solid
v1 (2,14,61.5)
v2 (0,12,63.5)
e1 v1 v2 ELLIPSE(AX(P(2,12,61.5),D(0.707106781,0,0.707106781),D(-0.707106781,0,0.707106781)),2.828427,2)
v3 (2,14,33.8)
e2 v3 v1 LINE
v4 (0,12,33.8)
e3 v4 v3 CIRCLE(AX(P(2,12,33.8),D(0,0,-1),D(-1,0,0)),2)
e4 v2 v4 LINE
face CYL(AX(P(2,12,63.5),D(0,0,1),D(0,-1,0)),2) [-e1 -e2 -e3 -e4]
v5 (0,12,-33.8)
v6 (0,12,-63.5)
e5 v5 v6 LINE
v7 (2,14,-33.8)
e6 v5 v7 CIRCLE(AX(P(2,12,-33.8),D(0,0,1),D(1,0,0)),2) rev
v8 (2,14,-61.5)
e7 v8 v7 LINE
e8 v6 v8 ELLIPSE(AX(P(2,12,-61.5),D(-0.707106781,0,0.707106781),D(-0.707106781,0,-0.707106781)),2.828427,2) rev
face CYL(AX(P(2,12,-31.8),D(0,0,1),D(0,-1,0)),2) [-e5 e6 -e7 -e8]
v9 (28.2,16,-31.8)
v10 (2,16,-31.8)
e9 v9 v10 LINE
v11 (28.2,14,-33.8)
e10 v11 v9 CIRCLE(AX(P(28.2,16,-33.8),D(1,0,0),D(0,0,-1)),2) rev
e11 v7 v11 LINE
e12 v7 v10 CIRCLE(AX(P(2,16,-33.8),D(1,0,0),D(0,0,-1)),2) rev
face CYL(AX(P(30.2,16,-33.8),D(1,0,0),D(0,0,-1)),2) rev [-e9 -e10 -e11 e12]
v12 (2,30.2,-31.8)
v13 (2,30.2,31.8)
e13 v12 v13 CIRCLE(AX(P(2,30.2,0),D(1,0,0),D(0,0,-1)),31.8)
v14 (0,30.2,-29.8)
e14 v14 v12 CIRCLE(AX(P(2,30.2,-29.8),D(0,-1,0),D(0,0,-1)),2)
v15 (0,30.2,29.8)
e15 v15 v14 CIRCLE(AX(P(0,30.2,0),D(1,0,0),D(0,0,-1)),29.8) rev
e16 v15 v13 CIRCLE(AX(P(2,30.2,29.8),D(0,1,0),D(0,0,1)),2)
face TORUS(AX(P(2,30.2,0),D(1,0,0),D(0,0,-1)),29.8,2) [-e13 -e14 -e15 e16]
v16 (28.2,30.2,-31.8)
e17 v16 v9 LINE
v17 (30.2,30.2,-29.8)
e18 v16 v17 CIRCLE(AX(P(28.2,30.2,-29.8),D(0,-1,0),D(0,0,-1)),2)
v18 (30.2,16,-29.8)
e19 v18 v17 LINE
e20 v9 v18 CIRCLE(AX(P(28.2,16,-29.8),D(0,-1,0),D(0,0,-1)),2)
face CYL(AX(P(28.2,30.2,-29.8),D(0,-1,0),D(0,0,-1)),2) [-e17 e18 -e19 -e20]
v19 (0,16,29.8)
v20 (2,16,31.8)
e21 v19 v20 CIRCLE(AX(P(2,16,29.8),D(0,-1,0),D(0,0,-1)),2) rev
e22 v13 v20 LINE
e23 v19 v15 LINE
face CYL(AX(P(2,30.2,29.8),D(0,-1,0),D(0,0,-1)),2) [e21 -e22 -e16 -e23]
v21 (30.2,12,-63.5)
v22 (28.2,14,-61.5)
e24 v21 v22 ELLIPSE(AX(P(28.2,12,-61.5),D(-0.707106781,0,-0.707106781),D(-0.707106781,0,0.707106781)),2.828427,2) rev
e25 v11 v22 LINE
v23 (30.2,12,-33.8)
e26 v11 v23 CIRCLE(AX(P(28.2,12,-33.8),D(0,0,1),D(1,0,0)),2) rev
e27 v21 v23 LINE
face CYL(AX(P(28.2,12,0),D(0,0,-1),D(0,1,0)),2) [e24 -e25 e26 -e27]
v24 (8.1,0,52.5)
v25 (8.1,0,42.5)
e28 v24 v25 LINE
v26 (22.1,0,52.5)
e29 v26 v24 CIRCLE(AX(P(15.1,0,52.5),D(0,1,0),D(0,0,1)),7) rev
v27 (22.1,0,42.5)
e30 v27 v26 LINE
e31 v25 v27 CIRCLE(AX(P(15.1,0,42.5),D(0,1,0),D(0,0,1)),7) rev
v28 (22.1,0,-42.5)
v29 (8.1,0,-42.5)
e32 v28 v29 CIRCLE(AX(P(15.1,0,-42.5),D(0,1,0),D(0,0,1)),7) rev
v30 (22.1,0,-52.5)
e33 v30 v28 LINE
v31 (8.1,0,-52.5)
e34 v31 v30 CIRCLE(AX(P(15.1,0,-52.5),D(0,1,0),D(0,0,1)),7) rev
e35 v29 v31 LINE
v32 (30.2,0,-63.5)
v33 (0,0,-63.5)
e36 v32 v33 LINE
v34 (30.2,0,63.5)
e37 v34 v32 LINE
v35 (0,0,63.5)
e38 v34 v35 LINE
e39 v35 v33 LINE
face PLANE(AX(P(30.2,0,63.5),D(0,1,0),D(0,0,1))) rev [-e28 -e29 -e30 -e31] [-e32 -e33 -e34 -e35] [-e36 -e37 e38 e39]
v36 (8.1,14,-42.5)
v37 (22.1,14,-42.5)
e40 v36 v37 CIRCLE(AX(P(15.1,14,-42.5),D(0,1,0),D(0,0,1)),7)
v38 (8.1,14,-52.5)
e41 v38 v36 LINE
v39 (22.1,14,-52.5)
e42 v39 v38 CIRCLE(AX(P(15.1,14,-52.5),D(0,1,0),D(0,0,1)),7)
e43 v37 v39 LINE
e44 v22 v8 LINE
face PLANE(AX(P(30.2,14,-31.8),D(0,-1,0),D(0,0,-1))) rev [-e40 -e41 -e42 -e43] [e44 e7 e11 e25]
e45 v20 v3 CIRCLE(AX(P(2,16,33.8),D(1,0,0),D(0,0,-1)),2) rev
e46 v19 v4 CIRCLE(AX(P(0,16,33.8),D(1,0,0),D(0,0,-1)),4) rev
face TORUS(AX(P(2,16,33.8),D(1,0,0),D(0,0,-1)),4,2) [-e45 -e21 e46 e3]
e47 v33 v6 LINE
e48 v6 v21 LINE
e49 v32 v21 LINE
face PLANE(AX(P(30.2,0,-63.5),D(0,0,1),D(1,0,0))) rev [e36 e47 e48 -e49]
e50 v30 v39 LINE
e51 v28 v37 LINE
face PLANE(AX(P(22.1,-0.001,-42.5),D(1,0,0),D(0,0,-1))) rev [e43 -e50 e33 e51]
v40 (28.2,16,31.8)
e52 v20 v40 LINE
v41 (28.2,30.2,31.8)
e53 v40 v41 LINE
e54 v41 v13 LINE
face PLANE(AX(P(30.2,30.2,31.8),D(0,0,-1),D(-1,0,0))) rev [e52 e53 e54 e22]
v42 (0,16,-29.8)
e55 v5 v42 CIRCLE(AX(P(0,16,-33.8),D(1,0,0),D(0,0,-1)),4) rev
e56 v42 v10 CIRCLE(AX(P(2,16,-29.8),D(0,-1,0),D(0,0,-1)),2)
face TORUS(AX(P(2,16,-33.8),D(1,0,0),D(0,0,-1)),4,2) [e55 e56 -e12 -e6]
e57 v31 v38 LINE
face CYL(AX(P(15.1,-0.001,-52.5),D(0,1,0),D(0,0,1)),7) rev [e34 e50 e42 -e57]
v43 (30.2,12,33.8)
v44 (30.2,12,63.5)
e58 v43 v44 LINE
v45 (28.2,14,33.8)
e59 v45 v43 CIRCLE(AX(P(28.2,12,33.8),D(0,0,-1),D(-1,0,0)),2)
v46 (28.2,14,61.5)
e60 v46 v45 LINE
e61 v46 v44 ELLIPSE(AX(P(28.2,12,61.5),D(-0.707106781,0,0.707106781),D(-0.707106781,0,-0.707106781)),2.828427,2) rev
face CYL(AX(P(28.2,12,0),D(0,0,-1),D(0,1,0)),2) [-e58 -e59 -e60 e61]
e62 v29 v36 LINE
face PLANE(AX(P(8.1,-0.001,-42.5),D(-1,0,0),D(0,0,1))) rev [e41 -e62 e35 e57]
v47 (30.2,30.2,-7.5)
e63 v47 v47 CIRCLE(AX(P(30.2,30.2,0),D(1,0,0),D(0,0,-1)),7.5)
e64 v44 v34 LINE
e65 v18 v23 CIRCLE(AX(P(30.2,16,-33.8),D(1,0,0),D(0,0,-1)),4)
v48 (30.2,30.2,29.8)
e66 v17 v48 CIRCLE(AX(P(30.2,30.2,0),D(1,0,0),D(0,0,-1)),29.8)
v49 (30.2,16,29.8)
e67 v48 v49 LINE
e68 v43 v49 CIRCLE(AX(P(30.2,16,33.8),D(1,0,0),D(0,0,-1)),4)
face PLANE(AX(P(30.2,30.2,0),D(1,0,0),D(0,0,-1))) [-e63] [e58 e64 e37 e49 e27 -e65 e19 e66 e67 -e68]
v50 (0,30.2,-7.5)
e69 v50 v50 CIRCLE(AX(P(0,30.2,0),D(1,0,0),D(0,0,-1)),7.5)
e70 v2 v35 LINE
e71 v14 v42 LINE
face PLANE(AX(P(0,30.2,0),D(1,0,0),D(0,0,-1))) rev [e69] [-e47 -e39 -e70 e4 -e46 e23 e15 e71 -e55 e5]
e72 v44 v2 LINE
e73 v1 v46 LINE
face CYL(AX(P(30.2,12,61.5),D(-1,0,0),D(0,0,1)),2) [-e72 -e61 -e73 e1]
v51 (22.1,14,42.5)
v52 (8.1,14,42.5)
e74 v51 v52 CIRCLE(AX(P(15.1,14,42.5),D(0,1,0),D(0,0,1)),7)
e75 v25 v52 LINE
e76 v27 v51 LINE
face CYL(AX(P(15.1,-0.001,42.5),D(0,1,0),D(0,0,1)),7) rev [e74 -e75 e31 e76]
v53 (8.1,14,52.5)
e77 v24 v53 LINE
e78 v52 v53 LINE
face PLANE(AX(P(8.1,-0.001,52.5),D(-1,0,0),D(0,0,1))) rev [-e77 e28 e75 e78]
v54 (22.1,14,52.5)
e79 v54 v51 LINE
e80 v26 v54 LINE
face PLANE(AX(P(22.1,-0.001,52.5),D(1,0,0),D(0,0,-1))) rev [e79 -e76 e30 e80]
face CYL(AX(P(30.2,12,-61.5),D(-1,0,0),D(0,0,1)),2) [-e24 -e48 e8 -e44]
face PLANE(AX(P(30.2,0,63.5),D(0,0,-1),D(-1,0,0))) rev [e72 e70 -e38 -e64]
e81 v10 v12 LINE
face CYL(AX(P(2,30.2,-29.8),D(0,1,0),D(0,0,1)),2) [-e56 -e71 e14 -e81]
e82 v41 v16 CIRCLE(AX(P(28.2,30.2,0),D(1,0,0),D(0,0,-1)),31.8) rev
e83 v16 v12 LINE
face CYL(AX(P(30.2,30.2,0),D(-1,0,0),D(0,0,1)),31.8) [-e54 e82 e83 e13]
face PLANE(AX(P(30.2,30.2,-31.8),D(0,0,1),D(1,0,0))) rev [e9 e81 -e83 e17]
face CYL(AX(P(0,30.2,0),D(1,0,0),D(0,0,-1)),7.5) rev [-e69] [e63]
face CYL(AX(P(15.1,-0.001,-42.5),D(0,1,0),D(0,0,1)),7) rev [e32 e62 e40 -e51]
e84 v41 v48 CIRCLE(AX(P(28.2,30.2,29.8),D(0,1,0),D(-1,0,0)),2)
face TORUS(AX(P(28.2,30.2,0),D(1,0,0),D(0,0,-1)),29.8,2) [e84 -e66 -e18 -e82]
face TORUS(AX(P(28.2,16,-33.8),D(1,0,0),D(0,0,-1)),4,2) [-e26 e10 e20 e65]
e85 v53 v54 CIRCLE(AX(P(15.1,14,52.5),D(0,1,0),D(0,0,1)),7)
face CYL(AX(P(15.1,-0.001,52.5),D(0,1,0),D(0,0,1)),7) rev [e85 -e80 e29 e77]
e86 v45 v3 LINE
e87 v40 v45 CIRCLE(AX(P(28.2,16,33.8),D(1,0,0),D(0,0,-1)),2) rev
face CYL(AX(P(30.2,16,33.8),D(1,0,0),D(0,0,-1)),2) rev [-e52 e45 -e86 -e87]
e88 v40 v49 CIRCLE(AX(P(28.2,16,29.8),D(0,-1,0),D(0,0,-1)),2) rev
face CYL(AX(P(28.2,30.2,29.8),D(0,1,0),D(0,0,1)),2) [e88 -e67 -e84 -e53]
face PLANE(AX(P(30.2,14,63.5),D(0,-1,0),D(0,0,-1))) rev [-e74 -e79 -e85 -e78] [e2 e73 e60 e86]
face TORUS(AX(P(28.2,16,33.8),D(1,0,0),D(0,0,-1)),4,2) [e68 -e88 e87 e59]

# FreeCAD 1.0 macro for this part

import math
import FreeCAD as App
import Part
import Sketcher
Q = App.Units.Quantity


def edges_at(feature, points):
    """Names of the edges that pass closest to the given points."""
    edges = feature.Shape.Edges
    near = lambda p: min(range(len(edges)), key=lambda i: edges[i].distToShape(Part.Vertex(*p))[0])
    return sorted({f"Edge{near(p) + 1}" for p in points})

doc = App.newDocument("Part")
body = doc.addObject("PartDesign::Body", "Body")

sketch1 = body.newObject("Sketcher::SketchObject", "Sketch")
sketch1.AttachmentSupport = (doc.getObject("YZ_Plane"), [""])
sketch1.MapMode = "FlatFace"
sketch1.addGeometry([
    Part.LineSegment(App.Vector(14, -63.5, 0), App.Vector(14, -31.8, 0)),
    Part.LineSegment(App.Vector(14, -31.8, 0), App.Vector(30.2, -31.8, 0)),
    Part.ArcOfCircle(Part.Circle(App.Vector(30.2, 0, 0), App.Vector(0, 0, 1), 31.8), math.radians(-90), math.radians(90)),
    Part.LineSegment(App.Vector(30.2, 31.8, 0), App.Vector(14, 31.8, 0)),
    Part.LineSegment(App.Vector(14, 31.8, 0), App.Vector(14, 63.5, 0)),
    Part.LineSegment(App.Vector(14, 63.5, 0), App.Vector(0, 63.5, 0)),
    Part.LineSegment(App.Vector(0, 63.5, 0), App.Vector(0, -63.5, 0)),
    Part.LineSegment(App.Vector(0, -63.5, 0), App.Vector(14, -63.5, 0)),
], False)
sketch1.addConstraint([
    Sketcher.Constraint("Coincident", 0, 2, 1, 1),
    Sketcher.Constraint("Tangent", 1, 2, 2, 1),
    Sketcher.Constraint("Tangent", 2, 2, 3, 1),
    Sketcher.Constraint("Coincident", 3, 2, 4, 1),
    Sketcher.Constraint("Coincident", 4, 2, 5, 1),
    Sketcher.Constraint("Coincident", 5, 2, 6, 1),
    Sketcher.Constraint("Coincident", 6, 2, 7, 1),
    Sketcher.Constraint("Coincident", 7, 2, 0, 1),
    Sketcher.Constraint("Vertical", 0),
    Sketcher.Constraint("Horizontal", 1),
    Sketcher.Constraint("Horizontal", 3),
    Sketcher.Constraint("Vertical", 4),
    Sketcher.Constraint("Horizontal", 5),
    Sketcher.Constraint("Vertical", 6),
    Sketcher.Constraint("Horizontal", 7),
    Sketcher.Constraint("Symmetric", 5, 2, 6, 2, -1, 1),
    Sketcher.Constraint("Symmetric", 0, 2, 3, 2, -1),
    Sketcher.Constraint("Radius", 2, Q("31.8 mm")),
    Sketcher.Constraint("DistanceX", 5, 2, 5, 1, Q("14 mm")),
    Sketcher.Constraint("DistanceY", 6, 2, 6, 1, Q("127 mm")),
    Sketcher.Constraint("DistanceX", 1, 1, 1, 2, Q("16.2 mm")),
])
pad1 = body.newObject("PartDesign::Pad", "Pad")
pad1.Profile = sketch1
pad1.Length = 30.2

sketch2 = body.newObject("Sketcher::SketchObject", "Sketch001")
sketch2.AttachmentSupport = (doc.getObject("YZ_Plane"), [""])
sketch2.MapMode = "FlatFace"
sketch2.AttachmentOffset = App.Placement(App.Vector(0, 0, 30.2), App.Rotation())
sketch2.addGeometry(Part.Circle(App.Vector(30.2, 0, 0), App.Vector(0, 0, 1), 7.5), False)
sketch2.addConstraint([
    Sketcher.Constraint("PointOnObject", 0, 3, -1),
    Sketcher.Constraint("Diameter", 0, Q("15 mm")),
    Sketcher.Constraint("DistanceX", -1, 1, 0, 3, Q("30.2 mm")),
])
pocket1 = body.newObject("PartDesign::Pocket", "Pocket")
pocket1.Profile = sketch2
pocket1.Type = "ThroughAll"
doc.recompute()

fillet = body.newObject("PartDesign::Fillet", "Fillet")
fillet.Base = (pocket1, edges_at(pocket1, [
    (0, 14, -47.65),
    (15.1, 14, 63.5),
    (15.1, 14, 31.8),
    (15.1, 14, -31.8),
    (15.1, 14, -63.5),
    (30.2, 14, -47.65),
    (30.2, 22.1, -31.8),
    (30.2, 62, 0),
    (30.2, 22.1, 31.8),
    (30.2, 14, 47.65),
    (0, 14, 47.65),
    (0, 22.1, 31.8),
    (0, 62, 0),
    (0, 22.1, -31.8),
]))
fillet.Radius = 2

sketch3 = body.newObject("Sketcher::SketchObject", "Sketch002")
sketch3.AttachmentSupport = (doc.getObject("XZ_Plane"), [""])
sketch3.MapMode = "FlatFace"
sketch3.AttachmentOffset = App.Placement(App.Vector(0, 0, -14), App.Rotation())
sketch3.addGeometry([
    Part.LineSegment(App.Vector(8.1, 42.5, 0), App.Vector(8.1, 52.5, 0)),
    Part.ArcOfCircle(Part.Circle(App.Vector(15.1, 52.5, 0), App.Vector(0, 0, 1), 7), math.radians(0), math.radians(180)),
    Part.LineSegment(App.Vector(22.1, 52.5, 0), App.Vector(22.1, 42.5, 0)),
    Part.ArcOfCircle(Part.Circle(App.Vector(15.1, 42.5, 0), App.Vector(0, 0, 1), 7), math.radians(180), math.radians(360)),
], False)
sketch3.addConstraint([
    Sketcher.Constraint("Tangent", 0, 2, 1, 2),
    Sketcher.Constraint("Tangent", 1, 1, 2, 1),
    Sketcher.Constraint("Tangent", 2, 2, 3, 2),
    Sketcher.Constraint("Tangent", 3, 1, 0, 1),
    Sketcher.Constraint("Vertical", 0),
    Sketcher.Constraint("Vertical", 2),
    Sketcher.Constraint("Radius", 1, Q("7 mm")),
    Sketcher.Constraint("DistanceY", 0, 1, 0, 2, Q("10 mm")),
    Sketcher.Constraint("DistanceX", -1, 1, 1, 3, Q("15.1 mm")),
    Sketcher.Constraint("DistanceY", -1, 1, 1, 3, Q("52.5 mm")),
])
pocket2 = body.newObject("PartDesign::Pocket", "Pocket001")
pocket2.Profile = sketch3
pocket2.Type = "UpToFirst"
pocket2.Reversed = True

sketch4 = body.newObject("Sketcher::SketchObject", "Sketch003")
sketch4.AttachmentSupport = (doc.getObject("XZ_Plane"), [""])
sketch4.MapMode = "FlatFace"
sketch4.AttachmentOffset = App.Placement(App.Vector(0, 0, -14), App.Rotation())
sketch4.addGeometry([
    Part.LineSegment(App.Vector(8.1, -52.5, 0), App.Vector(8.1, -42.5, 0)),
    Part.ArcOfCircle(Part.Circle(App.Vector(15.1, -42.5, 0), App.Vector(0, 0, 1), 7), math.radians(0), math.radians(180)),
    Part.LineSegment(App.Vector(22.1, -42.5, 0), App.Vector(22.1, -52.5, 0)),
    Part.ArcOfCircle(Part.Circle(App.Vector(15.1, -52.5, 0), App.Vector(0, 0, 1), 7), math.radians(180), math.radians(360)),
], False)
sketch4.addConstraint([
    Sketcher.Constraint("Tangent", 0, 2, 1, 2),
    Sketcher.Constraint("Tangent", 1, 1, 2, 1),
    Sketcher.Constraint("Tangent", 2, 2, 3, 2),
    Sketcher.Constraint("Tangent", 3, 1, 0, 1),
    Sketcher.Constraint("Vertical", 0),
    Sketcher.Constraint("Vertical", 2),
    Sketcher.Constraint("Radius", 1, Q("7 mm")),
    Sketcher.Constraint("DistanceY", 0, 1, 0, 2, Q("10 mm")),
    Sketcher.Constraint("DistanceX", -1, 1, 1, 3, Q("15.1 mm")),
    Sketcher.Constraint("DistanceY", 1, 3, -1, 1, Q("42.5 mm")),
])
pocket3 = body.newObject("PartDesign::Pocket", "Pocket002")
pocket3.Profile = sketch4
pocket3.Type = "UpToFirst"
pocket3.Reversed = True

doc.recompute()
